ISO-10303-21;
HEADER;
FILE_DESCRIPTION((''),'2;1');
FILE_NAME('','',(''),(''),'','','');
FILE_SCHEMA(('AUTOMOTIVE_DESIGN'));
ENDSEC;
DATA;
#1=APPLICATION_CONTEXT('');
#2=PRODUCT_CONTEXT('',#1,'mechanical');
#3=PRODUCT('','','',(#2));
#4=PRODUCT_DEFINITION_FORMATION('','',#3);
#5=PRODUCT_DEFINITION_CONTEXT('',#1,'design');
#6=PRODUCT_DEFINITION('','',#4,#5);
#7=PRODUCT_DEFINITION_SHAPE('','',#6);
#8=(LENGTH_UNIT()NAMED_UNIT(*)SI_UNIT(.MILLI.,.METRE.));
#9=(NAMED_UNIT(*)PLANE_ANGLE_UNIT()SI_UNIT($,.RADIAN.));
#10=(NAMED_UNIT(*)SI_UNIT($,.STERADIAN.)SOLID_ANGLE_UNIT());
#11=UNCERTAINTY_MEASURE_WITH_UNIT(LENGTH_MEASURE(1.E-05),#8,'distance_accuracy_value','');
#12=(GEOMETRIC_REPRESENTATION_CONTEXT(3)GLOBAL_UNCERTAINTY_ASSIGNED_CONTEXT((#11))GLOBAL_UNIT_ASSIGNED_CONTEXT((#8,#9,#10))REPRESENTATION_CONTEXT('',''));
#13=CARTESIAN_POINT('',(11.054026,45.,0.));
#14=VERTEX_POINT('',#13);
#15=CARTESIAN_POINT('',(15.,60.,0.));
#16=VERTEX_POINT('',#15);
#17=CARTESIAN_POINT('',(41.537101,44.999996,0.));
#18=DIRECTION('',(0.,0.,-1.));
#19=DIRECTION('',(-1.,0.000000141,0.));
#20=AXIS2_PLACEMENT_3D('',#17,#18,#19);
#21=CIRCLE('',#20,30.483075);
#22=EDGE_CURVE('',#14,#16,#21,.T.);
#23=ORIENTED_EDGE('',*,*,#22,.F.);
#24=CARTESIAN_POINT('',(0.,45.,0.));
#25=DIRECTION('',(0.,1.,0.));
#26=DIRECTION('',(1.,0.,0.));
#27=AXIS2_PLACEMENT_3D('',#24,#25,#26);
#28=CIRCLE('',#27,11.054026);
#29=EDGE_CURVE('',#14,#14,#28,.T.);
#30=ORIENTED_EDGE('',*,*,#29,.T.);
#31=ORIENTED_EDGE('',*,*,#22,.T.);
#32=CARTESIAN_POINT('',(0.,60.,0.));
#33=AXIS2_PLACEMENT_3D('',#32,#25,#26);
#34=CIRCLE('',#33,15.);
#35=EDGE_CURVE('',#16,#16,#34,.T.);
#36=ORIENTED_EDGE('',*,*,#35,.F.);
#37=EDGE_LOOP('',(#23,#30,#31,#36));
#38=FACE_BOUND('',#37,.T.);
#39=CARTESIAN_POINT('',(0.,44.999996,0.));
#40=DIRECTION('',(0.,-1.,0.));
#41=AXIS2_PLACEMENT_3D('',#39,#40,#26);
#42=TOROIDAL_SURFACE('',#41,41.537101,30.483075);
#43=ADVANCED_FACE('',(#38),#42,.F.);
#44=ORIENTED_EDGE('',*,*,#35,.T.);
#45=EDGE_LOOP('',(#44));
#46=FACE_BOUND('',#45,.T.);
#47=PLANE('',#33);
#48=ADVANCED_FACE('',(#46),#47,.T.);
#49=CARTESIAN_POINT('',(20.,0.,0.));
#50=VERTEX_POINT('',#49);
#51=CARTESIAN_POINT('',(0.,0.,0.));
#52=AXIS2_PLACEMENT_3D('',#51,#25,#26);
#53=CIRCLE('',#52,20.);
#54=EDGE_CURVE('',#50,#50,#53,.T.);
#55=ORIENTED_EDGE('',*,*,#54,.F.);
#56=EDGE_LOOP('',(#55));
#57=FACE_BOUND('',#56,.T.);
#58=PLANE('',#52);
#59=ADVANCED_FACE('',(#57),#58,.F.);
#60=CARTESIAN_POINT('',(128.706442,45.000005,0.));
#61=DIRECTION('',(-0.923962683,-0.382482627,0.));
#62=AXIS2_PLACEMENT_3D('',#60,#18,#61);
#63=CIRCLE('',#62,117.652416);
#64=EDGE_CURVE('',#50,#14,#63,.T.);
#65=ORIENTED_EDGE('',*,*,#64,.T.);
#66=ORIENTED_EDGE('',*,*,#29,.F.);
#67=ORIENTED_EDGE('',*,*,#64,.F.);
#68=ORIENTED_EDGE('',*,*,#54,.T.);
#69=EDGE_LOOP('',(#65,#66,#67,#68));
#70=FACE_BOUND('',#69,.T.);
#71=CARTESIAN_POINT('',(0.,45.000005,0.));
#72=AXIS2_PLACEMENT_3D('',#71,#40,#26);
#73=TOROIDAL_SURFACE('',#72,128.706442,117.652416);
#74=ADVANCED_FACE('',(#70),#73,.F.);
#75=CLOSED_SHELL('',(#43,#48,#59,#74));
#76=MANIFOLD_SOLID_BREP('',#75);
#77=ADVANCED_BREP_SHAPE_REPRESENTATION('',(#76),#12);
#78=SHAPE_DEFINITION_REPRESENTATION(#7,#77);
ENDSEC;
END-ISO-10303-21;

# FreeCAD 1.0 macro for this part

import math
import FreeCAD as App
import Part
import Sketcher
from FreeCAD import Vector

doc = App.newDocument("Part")
params = doc.addObject("Spreadsheet::Sheet", "Params")
for row, (alias, value) in enumerate([
    ("sketch1_width", "20 mm"),
    ("sketch1_width2", "15 mm"),
    ("sketch1_height", "60 mm"),
    ("revolution_angle", "360 deg"),
], start=1):
    params.set(f"A{row}", alias)
    params.set(f"B{row}", "=" + value)
    params.setAlias(f"B{row}", alias)

body = doc.addObject("PartDesign::Body", "Body")

# Sketch on XY plane
sketch1 = body.newObject("Sketcher::SketchObject", "Sketch")
sketch1.AttachmentSupport = (doc.getObject("XY_Plane"), [""])
sketch1.MapMode = "FlatFace"
sketch1.addGeometry(Part.LineSegment(Vector(0, 60, 0), Vector(0, 0, 0)), False)
sketch1.addGeometry(Part.LineSegment(Vector(0, 0, 0), Vector(20, 0, 0)), False)
sketch1.addGeometry(Part.ArcOfCircle(Part.Circle(Vector(129, 45, 0), Vector(0, 0, 1), 118), math.radians(-180), math.radians(-158)), False)
sketch1.addGeometry(Part.ArcOfCircle(Part.Circle(Vector(42, 45, 0), Vector(0, 0, 1), 30), math.radians(151), math.radians(180)), False)
sketch1.addGeometry(Part.LineSegment(Vector(15, 60, 0), Vector(0, 60, 0)), False)
sketch1.addConstraint(Sketcher.Constraint("Coincident", 0, 2, 1, 1))
sketch1.addConstraint(Sketcher.Constraint("Coincident", 1, 2, 2, 2))
sketch1.addConstraint(Sketcher.Constraint("Tangent", 2, 1, 3, 2))
sketch1.addConstraint(Sketcher.Constraint("Coincident", 3, 1, 4, 1))
sketch1.addConstraint(Sketcher.Constraint("Coincident", 4, 2, 0, 1))
sketch1.addConstraint(Sketcher.Constraint("Vertical", 0))
sketch1.addConstraint(Sketcher.Constraint("Horizontal", 1))
sketch1.addConstraint(Sketcher.Constraint("Horizontal", 4))
sketch1.addConstraint(Sketcher.Constraint("Coincident", 0, 2, -1, 1))
sketch1.addConstraint(Sketcher.Constraint("DistanceX", 1, 1, 1, 2, 20.0))
sketch1.addConstraint(Sketcher.Constraint("DistanceX", 4, 2, 4, 1, 15.0))
sketch1.addConstraint(Sketcher.Constraint("DistanceY", 0, 2, 0, 1, 60.0))
sketch1.addConstraint(Sketcher.Constraint("DistanceY", -1, 1, 2, 1, 45.0))
sketch1.addConstraint(Sketcher.Constraint("Radius", 2, 117.652416))
sketch1.addConstraint(Sketcher.Constraint("Radius", 3, 30.483075))
sketch1.setExpression("Constraints[9]", "Params.sketch1_width")
sketch1.setExpression("Constraints[10]", "Params.sketch1_width2")
sketch1.setExpression("Constraints[11]", "Params.sketch1_height")
revolution = body.newObject("PartDesign::Revolution", "Revolution")
revolution.Profile = sketch1
revolution.ReferenceAxis = (sketch1, ["V_Axis"])
revolution.setExpression("Angle", "Params.revolution_angle")

doc.recompute()
